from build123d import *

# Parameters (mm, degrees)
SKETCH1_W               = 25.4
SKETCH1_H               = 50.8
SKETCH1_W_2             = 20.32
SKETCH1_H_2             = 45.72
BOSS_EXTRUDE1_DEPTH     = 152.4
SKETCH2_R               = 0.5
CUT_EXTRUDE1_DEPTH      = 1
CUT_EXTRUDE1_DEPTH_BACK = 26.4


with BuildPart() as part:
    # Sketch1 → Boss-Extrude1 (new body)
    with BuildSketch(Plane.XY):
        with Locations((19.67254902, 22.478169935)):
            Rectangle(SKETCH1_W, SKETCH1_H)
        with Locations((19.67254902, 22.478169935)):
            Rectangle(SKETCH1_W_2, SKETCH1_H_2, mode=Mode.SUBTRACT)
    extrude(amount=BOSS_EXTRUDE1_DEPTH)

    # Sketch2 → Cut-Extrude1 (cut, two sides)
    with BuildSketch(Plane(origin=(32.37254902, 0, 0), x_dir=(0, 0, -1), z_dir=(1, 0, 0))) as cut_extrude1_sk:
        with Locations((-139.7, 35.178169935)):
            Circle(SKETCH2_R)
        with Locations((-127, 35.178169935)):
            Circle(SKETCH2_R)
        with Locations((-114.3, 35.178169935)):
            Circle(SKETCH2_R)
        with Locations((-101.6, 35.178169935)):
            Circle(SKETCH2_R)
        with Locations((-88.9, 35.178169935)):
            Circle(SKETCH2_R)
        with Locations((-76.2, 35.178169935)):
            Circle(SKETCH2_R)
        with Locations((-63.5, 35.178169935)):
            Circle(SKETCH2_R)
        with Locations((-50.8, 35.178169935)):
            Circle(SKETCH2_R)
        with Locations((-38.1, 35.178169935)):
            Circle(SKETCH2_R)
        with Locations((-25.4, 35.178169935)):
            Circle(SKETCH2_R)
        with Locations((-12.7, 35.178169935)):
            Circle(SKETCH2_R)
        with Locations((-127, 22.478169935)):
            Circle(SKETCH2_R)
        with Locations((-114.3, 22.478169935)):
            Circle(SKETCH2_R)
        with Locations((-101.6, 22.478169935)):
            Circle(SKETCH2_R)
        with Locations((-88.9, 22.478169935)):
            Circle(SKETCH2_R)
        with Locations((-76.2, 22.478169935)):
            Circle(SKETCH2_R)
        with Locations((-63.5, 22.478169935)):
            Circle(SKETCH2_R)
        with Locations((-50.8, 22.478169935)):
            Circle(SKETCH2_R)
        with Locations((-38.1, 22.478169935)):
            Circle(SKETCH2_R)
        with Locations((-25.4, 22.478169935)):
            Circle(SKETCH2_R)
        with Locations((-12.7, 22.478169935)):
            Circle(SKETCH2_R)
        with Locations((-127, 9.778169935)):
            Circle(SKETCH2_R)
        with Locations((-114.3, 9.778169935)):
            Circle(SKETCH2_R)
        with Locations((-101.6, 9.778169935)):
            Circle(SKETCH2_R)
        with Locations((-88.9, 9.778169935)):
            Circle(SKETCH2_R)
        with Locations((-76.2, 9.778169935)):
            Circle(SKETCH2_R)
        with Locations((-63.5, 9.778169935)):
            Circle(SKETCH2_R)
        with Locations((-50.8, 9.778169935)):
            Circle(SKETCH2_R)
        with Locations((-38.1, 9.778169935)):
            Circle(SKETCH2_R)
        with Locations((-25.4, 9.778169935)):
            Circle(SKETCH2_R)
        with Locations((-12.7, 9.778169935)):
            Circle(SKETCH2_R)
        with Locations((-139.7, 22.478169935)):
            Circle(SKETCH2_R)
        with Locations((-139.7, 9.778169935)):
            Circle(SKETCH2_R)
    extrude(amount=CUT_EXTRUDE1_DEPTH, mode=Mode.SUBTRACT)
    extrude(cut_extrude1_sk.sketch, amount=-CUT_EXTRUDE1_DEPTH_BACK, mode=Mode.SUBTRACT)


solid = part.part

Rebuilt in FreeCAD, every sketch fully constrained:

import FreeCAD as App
import Part
import Sketcher
from FreeCAD import Vector
Q = App.Units.Quantity

doc = App.newDocument("Part")
body = doc.addObject("PartDesign::Body", "Body")

# Sketch on XY plane
sketch1 = body.newObject("Sketcher::SketchObject", "Sketch")
sketch1.AttachmentSupport = (doc.getObject("XY_Plane"), [""])
sketch1.MapMode = "FlatFace"
sketch1.addGeometry([
    Part.LineSegment(Vector(7, 48, 0), Vector(7, -3, 0)),  # 0
    Part.LineSegment(Vector(7, -3, 0), Vector(32, -3, 0)),  # 1
    Part.LineSegment(Vector(32, -3, 0), Vector(32, 48, 0)),  # 2
    Part.LineSegment(Vector(32, 48, 0), Vector(7, 48, 0)),  # 3
    Part.LineSegment(Vector(30, 0, 0), Vector(10, 0, 0)),  # 4
    Part.LineSegment(Vector(10, 0, 0), Vector(10, 45, 0)),  # 5
    Part.LineSegment(Vector(10, 45, 0), Vector(30, 45, 0)),  # 6
    Part.LineSegment(Vector(30, 45, 0), Vector(30, 0, 0)),  # 7
], False)
sketch1.addConstraint([
    Sketcher.Constraint("Coincident", 0, 2, 1, 1),
    Sketcher.Constraint("Coincident", 1, 2, 2, 1),
    Sketcher.Constraint("Coincident", 2, 2, 3, 1),
    Sketcher.Constraint("Coincident", 3, 2, 0, 1),
    Sketcher.Constraint("Coincident", 4, 2, 5, 1),
    Sketcher.Constraint("Coincident", 5, 2, 6, 1),
    Sketcher.Constraint("Coincident", 6, 2, 7, 1),
    Sketcher.Constraint("Coincident", 7, 2, 4, 1),
    Sketcher.Constraint("Vertical", 0),
    Sketcher.Constraint("Horizontal", 1),
    Sketcher.Constraint("Vertical", 2),
    Sketcher.Constraint("Horizontal", 3),
    Sketcher.Constraint("Horizontal", 4),
    Sketcher.Constraint("Vertical", 5),
    Sketcher.Constraint("Horizontal", 6),
    Sketcher.Constraint("Vertical", 7),
    Sketcher.Constraint("DistanceX", 1, 1, 1, 2, Q("1 in")),
    Sketcher.Constraint("DistanceY", 0, 2, 0, 1, Q("2 in")),
    Sketcher.Constraint("DistanceX", 4, 2, 4, 1, Q("0.8 in")),
    Sketcher.Constraint("DistanceY", 5, 1, 5, 2, Q("1.8 in")),
    Sketcher.Constraint("DistanceX", 0, 2, 4, 2, Q("0.1 in")),
    Sketcher.Constraint("DistanceY", 0, 2, 4, 2, Q("0.1 in")),
    Sketcher.Constraint("DistanceX", -1, 1, 0, 2, 6.972549),
    Sketcher.Constraint("DistanceY", 0, 2, -1, 1, 2.92183),
])
pad1 = body.newObject("PartDesign::Pad", "Pad")
pad1.Profile = sketch1
pad1.Length = Q("6 in")

# Sketch on YZ plane
sketch2 = body.newObject("Sketcher::SketchObject", "Sketch001")
sketch2.AttachmentSupport = (doc.getObject("YZ_Plane"), [""])
sketch2.MapMode = "FlatFace"
sketch2.AttachmentOffset = App.Placement(Vector(0, 0, 32.372549), App.Rotation())
sketch2.addGeometry([
    Part.Circle(Vector(35.2, 139.7, 0), Vector(0, 0, 1), 0.5),  # 0
    Part.Circle(Vector(35.2, 127, 0), Vector(0, 0, 1), 0.5),  # 1
    Part.Circle(Vector(35.2, 114.3, 0), Vector(0, 0, 1), 0.5),  # 2
    Part.Circle(Vector(35.2, 101.6, 0), Vector(0, 0, 1), 0.5),  # 3
    Part.Circle(Vector(35.2, 88.9, 0), Vector(0, 0, 1), 0.5),  # 4
    Part.Circle(Vector(35.2, 76.2, 0), Vector(0, 0, 1), 0.5),  # 5
    Part.Circle(Vector(35.2, 63.5, 0), Vector(0, 0, 1), 0.5),  # 6
    Part.Circle(Vector(35.2, 50.8, 0), Vector(0, 0, 1), 0.5),  # 7
    Part.Circle(Vector(35.2, 38.1, 0), Vector(0, 0, 1), 0.5),  # 8
    Part.Circle(Vector(35.2, 25.4, 0), Vector(0, 0, 1), 0.5),  # 9
    Part.Circle(Vector(35.2, 12.7, 0), Vector(0, 0, 1), 0.5),  # 10
    Part.Circle(Vector(22.5, 127, 0), Vector(0, 0, 1), 0.5),  # 11
    Part.Circle(Vector(22.5, 114.3, 0), Vector(0, 0, 1), 0.5),  # 12
    Part.Circle(Vector(22.5, 101.6, 0), Vector(0, 0, 1), 0.5),  # 13
    Part.Circle(Vector(22.5, 88.9, 0), Vector(0, 0, 1), 0.5),  # 14
    Part.Circle(Vector(22.5, 76.2, 0), Vector(0, 0, 1), 0.5),  # 15
    Part.Circle(Vector(22.5, 63.5, 0), Vector(0, 0, 1), 0.5),  # 16
    Part.Circle(Vector(22.5, 50.8, 0), Vector(0, 0, 1), 0.5),  # 17
    Part.Circle(Vector(22.5, 38.1, 0), Vector(0, 0, 1), 0.5),  # 18
    Part.Circle(Vector(22.5, 25.4, 0), Vector(0, 0, 1), 0.5),  # 19
    Part.Circle(Vector(22.5, 12.7, 0), Vector(0, 0, 1), 0.5),  # 20
    Part.Circle(Vector(9.8, 127, 0), Vector(0, 0, 1), 0.5),  # 21
    Part.Circle(Vector(9.8, 114.3, 0), Vector(0, 0, 1), 0.5),  # 22
    Part.Circle(Vector(9.8, 101.6, 0), Vector(0, 0, 1), 0.5),  # 23
    Part.Circle(Vector(9.8, 88.9, 0), Vector(0, 0, 1), 0.5),  # 24
    Part.Circle(Vector(9.8, 76.2, 0), Vector(0, 0, 1), 0.5),  # 25
    Part.Circle(Vector(9.8, 63.5, 0), Vector(0, 0, 1), 0.5),  # 26
    Part.Circle(Vector(9.8, 50.8, 0), Vector(0, 0, 1), 0.5),  # 27
    Part.Circle(Vector(9.8, 38.1, 0), Vector(0, 0, 1), 0.5),  # 28
    Part.Circle(Vector(9.8, 25.4, 0), Vector(0, 0, 1), 0.5),  # 29
    Part.Circle(Vector(9.8, 12.7, 0), Vector(0, 0, 1), 0.5),  # 30
    Part.Circle(Vector(22.5, 139.7, 0), Vector(0, 0, 1), 0.5),  # 31
    Part.Circle(Vector(9.8, 139.7, 0), Vector(0, 0, 1), 0.5),  # 32
], False)
sketch2.addConstraint([
    Sketcher.Constraint("Equal", 0, 1),
    Sketcher.Constraint("Equal", 1, 2),
    Sketcher.Constraint("Equal", 2, 3),
    Sketcher.Constraint("Equal", 3, 4),
    Sketcher.Constraint("Equal", 4, 5),
    Sketcher.Constraint("Equal", 5, 6),
    Sketcher.Constraint("Equal", 6, 7),
    Sketcher.Constraint("Equal", 7, 8),
    Sketcher.Constraint("Equal", 8, 9),
    Sketcher.Constraint("Equal", 9, 10),
    Sketcher.Constraint("Equal", 10, 11),
    Sketcher.Constraint("Equal", 11, 12),
    Sketcher.Constraint("Equal", 12, 13),
    Sketcher.Constraint("Equal", 13, 14),
    Sketcher.Constraint("Equal", 14, 15),
    Sketcher.Constraint("Equal", 15, 16),
    Sketcher.Constraint("Equal", 16, 17),
    Sketcher.Constraint("Equal", 17, 18),
    Sketcher.Constraint("Equal", 18, 19),
    Sketcher.Constraint("Equal", 19, 20),
    Sketcher.Constraint("Equal", 20, 21),
    Sketcher.Constraint("Equal", 21, 22),
    Sketcher.Constraint("Equal", 22, 23),
    Sketcher.Constraint("Equal", 23, 24),
    Sketcher.Constraint("Equal", 24, 25),
    Sketcher.Constraint("Equal", 25, 26),
    Sketcher.Constraint("Equal", 26, 27),
    Sketcher.Constraint("Equal", 27, 28),
    Sketcher.Constraint("Equal", 28, 29),
    Sketcher.Constraint("Equal", 29, 30),
    Sketcher.Constraint("Equal", 30, 31),
    Sketcher.Constraint("Equal", 31, 32),
    Sketcher.Constraint("Horizontal", 1, 3, 11, 3),
    Sketcher.Constraint("Horizontal", 2, 3, 12, 3),
    Sketcher.Constraint("Horizontal", 3, 3, 13, 3),
    Sketcher.Constraint("Horizontal", 4, 3, 14, 3),
    Sketcher.Constraint("Horizontal", 5, 3, 15, 3),
    Sketcher.Constraint("Horizontal", 6, 3, 16, 3),
    Sketcher.Constraint("Horizontal", 7, 3, 17, 3),
    Sketcher.Constraint("Horizontal", 8, 3, 18, 3),
    Sketcher.Constraint("Horizontal", 9, 3, 19, 3),
    Sketcher.Constraint("Horizontal", 10, 3, 20, 3),
    Sketcher.Constraint("Horizontal", 11, 3, 21, 3),
    Sketcher.Constraint("Horizontal", 12, 3, 22, 3),
    Sketcher.Constraint("Horizontal", 13, 3, 23, 3),
    Sketcher.Constraint("Horizontal", 14, 3, 24, 3),
    Sketcher.Constraint("Horizontal", 15, 3, 25, 3),
    Sketcher.Constraint("Horizontal", 16, 3, 26, 3),
    Sketcher.Constraint("Horizontal", 17, 3, 27, 3),
    Sketcher.Constraint("Horizontal", 18, 3, 28, 3),
    Sketcher.Constraint("Horizontal", 19, 3, 29, 3),
    Sketcher.Constraint("Horizontal", 20, 3, 30, 3),
    Sketcher.Constraint("Horizontal", 0, 3, 31, 3),
    Sketcher.Constraint("Horizontal", 31, 3, 32, 3),
    Sketcher.Constraint("Vertical", 0, 3, 1, 3),
    Sketcher.Constraint("Vertical", 1, 3, 2, 3),
    Sketcher.Constraint("Vertical", 2, 3, 3, 3),
    Sketcher.Constraint("Vertical", 3, 3, 4, 3),
    Sketcher.Constraint("Vertical", 4, 3, 5, 3),
    Sketcher.Constraint("Vertical", 5, 3, 6, 3),
    Sketcher.Constraint("Vertical", 6, 3, 7, 3),
    Sketcher.Constraint("Vertical", 7, 3, 8, 3),
    Sketcher.Constraint("Vertical", 8, 3, 9, 3),
    Sketcher.Constraint("Vertical", 9, 3, 10, 3),
    Sketcher.Constraint("Vertical", 11, 3, 12, 3),
    Sketcher.Constraint("Vertical", 12, 3, 13, 3),
    Sketcher.Constraint("Vertical", 13, 3, 14, 3),
    Sketcher.Constraint("Vertical", 14, 3, 15, 3),
    Sketcher.Constraint("Vertical", 15, 3, 16, 3),
    Sketcher.Constraint("Vertical", 16, 3, 17, 3),
    Sketcher.Constraint("Vertical", 17, 3, 18, 3),
    Sketcher.Constraint("Vertical", 18, 3, 19, 3),
    Sketcher.Constraint("Vertical", 19, 3, 20, 3),
    Sketcher.Constraint("Vertical", 21, 3, 22, 3),
    Sketcher.Constraint("Vertical", 22, 3, 23, 3),
    Sketcher.Constraint("Vertical", 23, 3, 24, 3),
    Sketcher.Constraint("Vertical", 24, 3, 25, 3),
    Sketcher.Constraint("Vertical", 25, 3, 26, 3),
    Sketcher.Constraint("Vertical", 26, 3, 27, 3),
    Sketcher.Constraint("Vertical", 27, 3, 28, 3),
    Sketcher.Constraint("Vertical", 28, 3, 29, 3),
    Sketcher.Constraint("Vertical", 29, 3, 30, 3),
    Sketcher.Constraint("Vertical", 20, 3, 31, 3),
    Sketcher.Constraint("Vertical", 30, 3, 32, 3),
    Sketcher.Constraint("DistanceY", -1, 1, 1, 3, Q("5 in")),
    Sketcher.Constraint("DistanceY", -1, 1, 3, 3, Q("4 in")),
    Sketcher.Constraint("DistanceY", -1, 1, 5, 3, Q("3 in")),
    Sketcher.Constraint("DistanceY", -1, 1, 7, 3, Q("2 in")),
    Sketcher.Constraint("DistanceY", -1, 1, 9, 3, Q("1 in")),
    Sketcher.Constraint("DistanceY", 2, 3, 0, 3, Q("1 in")),
    Sketcher.Constraint("DistanceY", 4, 3, 2, 3, Q("1 in")),
    Sketcher.Constraint("DistanceY", 6, 3, 4, 3, Q("1 in")),
    Sketcher.Constraint("DistanceY", 8, 3, 6, 3, Q("1 in")),
    Sketcher.Constraint("DistanceY", 10, 3, 8, 3, Q("1 in")),
    Sketcher.Constraint("DistanceX", 21, 3, 1, 3, Q("1 in")),
    Sketcher.Constraint("DistanceY", -1, 1, 0, 3, Q("5.5 in")),
    Sketcher.Constraint("DistanceX", 11, 3, 1, 3, Q("0.5 in")),
    Sketcher.Constraint("Diameter", 0, 1.0),
    Sketcher.Constraint("DistanceX", -1, 1, 0, 3, 35.17817),
])
pocket1 = body.newObject("PartDesign::Pocket", "Pocket")
pocket1.Profile = sketch2
pocket1.Type = "ThroughAll"
pocket1.Midplane = True

doc.recompute()
